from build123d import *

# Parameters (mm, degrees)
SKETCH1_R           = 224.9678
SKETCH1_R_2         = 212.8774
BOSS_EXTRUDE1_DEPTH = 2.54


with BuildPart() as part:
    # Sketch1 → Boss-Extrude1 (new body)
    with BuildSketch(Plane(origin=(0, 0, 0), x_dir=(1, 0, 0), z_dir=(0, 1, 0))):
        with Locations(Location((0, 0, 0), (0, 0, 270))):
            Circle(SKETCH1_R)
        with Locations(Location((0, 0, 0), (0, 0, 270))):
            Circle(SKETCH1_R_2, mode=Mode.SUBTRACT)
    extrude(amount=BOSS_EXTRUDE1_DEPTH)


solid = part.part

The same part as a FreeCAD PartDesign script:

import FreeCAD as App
import Part
import Sketcher

V = App.Vector
Q = App.Units.Quantity

doc = App.newDocument("Part")
body = doc.addObject("PartDesign::Body", "Body")

# Sketch on XZ plane
sketch1 = body.newObject("Sketcher::SketchObject", "Sketch")
sketch1.AttachmentSupport = (doc.getObject("XZ_Plane"), [""])
sketch1.MapMode = "FlatFace"
sketch1.addGeometry(Part.Circle(V(0, 0, 0), V(0, 0, 1), 224.9678), False)
sketch1.addGeometry(Part.Circle(V(0, 0, 0), V(0, 0, 1), 212.8774), False)
sketch1.addConstraint(Sketcher.Constraint("Coincident", 0, 3, -1, 1))
sketch1.addConstraint(Sketcher.Constraint("Coincident", 1, 3, -1, 1))
sketch1.addConstraint(Sketcher.Constraint("Diameter", 0, Q("17.714 in")))
sketch1.addConstraint(Sketcher.Constraint("Diameter", 1, Q("16.762 in")))
pad1 = body.newObject("PartDesign::Pad", "Pad")
pad1.Profile = sketch1
pad1.Length = Q("0.1 in")
pad1.Reversed = True

doc.recompute()
